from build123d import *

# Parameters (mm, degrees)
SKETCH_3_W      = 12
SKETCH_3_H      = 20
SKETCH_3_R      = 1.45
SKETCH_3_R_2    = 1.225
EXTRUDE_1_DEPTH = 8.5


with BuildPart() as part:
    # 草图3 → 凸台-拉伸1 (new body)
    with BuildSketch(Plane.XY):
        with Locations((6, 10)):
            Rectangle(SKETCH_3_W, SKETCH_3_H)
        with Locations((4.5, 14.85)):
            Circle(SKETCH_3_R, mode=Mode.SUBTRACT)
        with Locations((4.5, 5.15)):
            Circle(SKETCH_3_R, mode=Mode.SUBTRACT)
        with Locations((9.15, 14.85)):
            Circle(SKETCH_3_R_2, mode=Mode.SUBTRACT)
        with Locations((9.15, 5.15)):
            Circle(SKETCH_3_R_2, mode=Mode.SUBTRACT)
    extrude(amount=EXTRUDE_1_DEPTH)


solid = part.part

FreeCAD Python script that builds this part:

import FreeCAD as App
import Part
import Sketcher
from FreeCAD import Vector
Q = App.Units.Quantity

doc = App.newDocument("Part")
body = doc.addObject("PartDesign::Body", "Body")

sketch1 = body.newObject("Sketcher::SketchObject", "Sketch")
sketch1.AttachmentSupport = (doc.getObject("XY_Plane"), [""])
sketch1.MapMode = "FlatFace"
sketch1.addGeometry([
    Part.LineSegment(Vector(0, 20, 0), Vector(0, 0, 0)),
    Part.LineSegment(Vector(0, 0, 0), Vector(12, 0, 0)),
    Part.LineSegment(Vector(12, 0, 0), Vector(12, 20, 0)),
    Part.LineSegment(Vector(12, 20, 0), Vector(0, 20, 0)),
    Part.Circle(Vector(4.5, 5.2, 0), Vector(0, 0, 1), 1.4),
    Part.Circle(Vector(9.2, 5.2, 0), Vector(0, 0, 1), 1.2),
    Part.Circle(Vector(4.5, 14.8, 0), Vector(0, 0, 1), 1.4),
    Part.Circle(Vector(9.2, 14.8, 0), Vector(0, 0, 1), 1.2),
], False)
sketch1.addConstraint([
    Sketcher.Constraint("Coincident", 0, 2, 1, 1),
    Sketcher.Constraint("Coincident", 1, 2, 2, 1),
    Sketcher.Constraint("Coincident", 2, 2, 3, 1),
    Sketcher.Constraint("Coincident", 3, 2, 0, 1),
    Sketcher.Constraint("Vertical", 0),
    Sketcher.Constraint("Horizontal", 1),
    Sketcher.Constraint("Vertical", 2),
    Sketcher.Constraint("Horizontal", 3),
    Sketcher.Constraint("Coincident", 0, 2, -1, 1),
    Sketcher.Constraint("Equal", 4, 6),
    Sketcher.Constraint("Equal", 5, 7),
    Sketcher.Constraint("Horizontal", 4, 3, 5, 3),
    Sketcher.Constraint("Horizontal", 6, 3, 7, 3),
    Sketcher.Constraint("Vertical", 4, 3, 6, 3),
    Sketcher.Constraint("Vertical", 5, 3, 7, 3),
    Sketcher.Constraint("Diameter", 4, Q("2.9 mm")),
    Sketcher.Constraint("Diameter", 5, Q("2.45 mm")),
    Sketcher.Constraint("DistanceX", 1, 1, 1, 2, Q("12 mm")),
    Sketcher.Constraint("DistanceY", 0, 2, 0, 1, Q("20 mm")),
    Sketcher.Constraint("DistanceX", -1, 1, 4, 3, Q("4.5 mm")),
    Sketcher.Constraint("DistanceY", 4, 3, 6, 3, Q("9.7 mm")),
    Sketcher.Constraint("DistanceY", -1, 1, 4, 3, Q("5.15 mm")),
    Sketcher.Constraint("DistanceX", -1, 1, 5, 3, Q("9.15 mm")),
])
pad1 = body.newObject("PartDesign::Pad", "Pad")
pad1.Profile = sketch1
pad1.Length = 8.5

doc.recompute()
